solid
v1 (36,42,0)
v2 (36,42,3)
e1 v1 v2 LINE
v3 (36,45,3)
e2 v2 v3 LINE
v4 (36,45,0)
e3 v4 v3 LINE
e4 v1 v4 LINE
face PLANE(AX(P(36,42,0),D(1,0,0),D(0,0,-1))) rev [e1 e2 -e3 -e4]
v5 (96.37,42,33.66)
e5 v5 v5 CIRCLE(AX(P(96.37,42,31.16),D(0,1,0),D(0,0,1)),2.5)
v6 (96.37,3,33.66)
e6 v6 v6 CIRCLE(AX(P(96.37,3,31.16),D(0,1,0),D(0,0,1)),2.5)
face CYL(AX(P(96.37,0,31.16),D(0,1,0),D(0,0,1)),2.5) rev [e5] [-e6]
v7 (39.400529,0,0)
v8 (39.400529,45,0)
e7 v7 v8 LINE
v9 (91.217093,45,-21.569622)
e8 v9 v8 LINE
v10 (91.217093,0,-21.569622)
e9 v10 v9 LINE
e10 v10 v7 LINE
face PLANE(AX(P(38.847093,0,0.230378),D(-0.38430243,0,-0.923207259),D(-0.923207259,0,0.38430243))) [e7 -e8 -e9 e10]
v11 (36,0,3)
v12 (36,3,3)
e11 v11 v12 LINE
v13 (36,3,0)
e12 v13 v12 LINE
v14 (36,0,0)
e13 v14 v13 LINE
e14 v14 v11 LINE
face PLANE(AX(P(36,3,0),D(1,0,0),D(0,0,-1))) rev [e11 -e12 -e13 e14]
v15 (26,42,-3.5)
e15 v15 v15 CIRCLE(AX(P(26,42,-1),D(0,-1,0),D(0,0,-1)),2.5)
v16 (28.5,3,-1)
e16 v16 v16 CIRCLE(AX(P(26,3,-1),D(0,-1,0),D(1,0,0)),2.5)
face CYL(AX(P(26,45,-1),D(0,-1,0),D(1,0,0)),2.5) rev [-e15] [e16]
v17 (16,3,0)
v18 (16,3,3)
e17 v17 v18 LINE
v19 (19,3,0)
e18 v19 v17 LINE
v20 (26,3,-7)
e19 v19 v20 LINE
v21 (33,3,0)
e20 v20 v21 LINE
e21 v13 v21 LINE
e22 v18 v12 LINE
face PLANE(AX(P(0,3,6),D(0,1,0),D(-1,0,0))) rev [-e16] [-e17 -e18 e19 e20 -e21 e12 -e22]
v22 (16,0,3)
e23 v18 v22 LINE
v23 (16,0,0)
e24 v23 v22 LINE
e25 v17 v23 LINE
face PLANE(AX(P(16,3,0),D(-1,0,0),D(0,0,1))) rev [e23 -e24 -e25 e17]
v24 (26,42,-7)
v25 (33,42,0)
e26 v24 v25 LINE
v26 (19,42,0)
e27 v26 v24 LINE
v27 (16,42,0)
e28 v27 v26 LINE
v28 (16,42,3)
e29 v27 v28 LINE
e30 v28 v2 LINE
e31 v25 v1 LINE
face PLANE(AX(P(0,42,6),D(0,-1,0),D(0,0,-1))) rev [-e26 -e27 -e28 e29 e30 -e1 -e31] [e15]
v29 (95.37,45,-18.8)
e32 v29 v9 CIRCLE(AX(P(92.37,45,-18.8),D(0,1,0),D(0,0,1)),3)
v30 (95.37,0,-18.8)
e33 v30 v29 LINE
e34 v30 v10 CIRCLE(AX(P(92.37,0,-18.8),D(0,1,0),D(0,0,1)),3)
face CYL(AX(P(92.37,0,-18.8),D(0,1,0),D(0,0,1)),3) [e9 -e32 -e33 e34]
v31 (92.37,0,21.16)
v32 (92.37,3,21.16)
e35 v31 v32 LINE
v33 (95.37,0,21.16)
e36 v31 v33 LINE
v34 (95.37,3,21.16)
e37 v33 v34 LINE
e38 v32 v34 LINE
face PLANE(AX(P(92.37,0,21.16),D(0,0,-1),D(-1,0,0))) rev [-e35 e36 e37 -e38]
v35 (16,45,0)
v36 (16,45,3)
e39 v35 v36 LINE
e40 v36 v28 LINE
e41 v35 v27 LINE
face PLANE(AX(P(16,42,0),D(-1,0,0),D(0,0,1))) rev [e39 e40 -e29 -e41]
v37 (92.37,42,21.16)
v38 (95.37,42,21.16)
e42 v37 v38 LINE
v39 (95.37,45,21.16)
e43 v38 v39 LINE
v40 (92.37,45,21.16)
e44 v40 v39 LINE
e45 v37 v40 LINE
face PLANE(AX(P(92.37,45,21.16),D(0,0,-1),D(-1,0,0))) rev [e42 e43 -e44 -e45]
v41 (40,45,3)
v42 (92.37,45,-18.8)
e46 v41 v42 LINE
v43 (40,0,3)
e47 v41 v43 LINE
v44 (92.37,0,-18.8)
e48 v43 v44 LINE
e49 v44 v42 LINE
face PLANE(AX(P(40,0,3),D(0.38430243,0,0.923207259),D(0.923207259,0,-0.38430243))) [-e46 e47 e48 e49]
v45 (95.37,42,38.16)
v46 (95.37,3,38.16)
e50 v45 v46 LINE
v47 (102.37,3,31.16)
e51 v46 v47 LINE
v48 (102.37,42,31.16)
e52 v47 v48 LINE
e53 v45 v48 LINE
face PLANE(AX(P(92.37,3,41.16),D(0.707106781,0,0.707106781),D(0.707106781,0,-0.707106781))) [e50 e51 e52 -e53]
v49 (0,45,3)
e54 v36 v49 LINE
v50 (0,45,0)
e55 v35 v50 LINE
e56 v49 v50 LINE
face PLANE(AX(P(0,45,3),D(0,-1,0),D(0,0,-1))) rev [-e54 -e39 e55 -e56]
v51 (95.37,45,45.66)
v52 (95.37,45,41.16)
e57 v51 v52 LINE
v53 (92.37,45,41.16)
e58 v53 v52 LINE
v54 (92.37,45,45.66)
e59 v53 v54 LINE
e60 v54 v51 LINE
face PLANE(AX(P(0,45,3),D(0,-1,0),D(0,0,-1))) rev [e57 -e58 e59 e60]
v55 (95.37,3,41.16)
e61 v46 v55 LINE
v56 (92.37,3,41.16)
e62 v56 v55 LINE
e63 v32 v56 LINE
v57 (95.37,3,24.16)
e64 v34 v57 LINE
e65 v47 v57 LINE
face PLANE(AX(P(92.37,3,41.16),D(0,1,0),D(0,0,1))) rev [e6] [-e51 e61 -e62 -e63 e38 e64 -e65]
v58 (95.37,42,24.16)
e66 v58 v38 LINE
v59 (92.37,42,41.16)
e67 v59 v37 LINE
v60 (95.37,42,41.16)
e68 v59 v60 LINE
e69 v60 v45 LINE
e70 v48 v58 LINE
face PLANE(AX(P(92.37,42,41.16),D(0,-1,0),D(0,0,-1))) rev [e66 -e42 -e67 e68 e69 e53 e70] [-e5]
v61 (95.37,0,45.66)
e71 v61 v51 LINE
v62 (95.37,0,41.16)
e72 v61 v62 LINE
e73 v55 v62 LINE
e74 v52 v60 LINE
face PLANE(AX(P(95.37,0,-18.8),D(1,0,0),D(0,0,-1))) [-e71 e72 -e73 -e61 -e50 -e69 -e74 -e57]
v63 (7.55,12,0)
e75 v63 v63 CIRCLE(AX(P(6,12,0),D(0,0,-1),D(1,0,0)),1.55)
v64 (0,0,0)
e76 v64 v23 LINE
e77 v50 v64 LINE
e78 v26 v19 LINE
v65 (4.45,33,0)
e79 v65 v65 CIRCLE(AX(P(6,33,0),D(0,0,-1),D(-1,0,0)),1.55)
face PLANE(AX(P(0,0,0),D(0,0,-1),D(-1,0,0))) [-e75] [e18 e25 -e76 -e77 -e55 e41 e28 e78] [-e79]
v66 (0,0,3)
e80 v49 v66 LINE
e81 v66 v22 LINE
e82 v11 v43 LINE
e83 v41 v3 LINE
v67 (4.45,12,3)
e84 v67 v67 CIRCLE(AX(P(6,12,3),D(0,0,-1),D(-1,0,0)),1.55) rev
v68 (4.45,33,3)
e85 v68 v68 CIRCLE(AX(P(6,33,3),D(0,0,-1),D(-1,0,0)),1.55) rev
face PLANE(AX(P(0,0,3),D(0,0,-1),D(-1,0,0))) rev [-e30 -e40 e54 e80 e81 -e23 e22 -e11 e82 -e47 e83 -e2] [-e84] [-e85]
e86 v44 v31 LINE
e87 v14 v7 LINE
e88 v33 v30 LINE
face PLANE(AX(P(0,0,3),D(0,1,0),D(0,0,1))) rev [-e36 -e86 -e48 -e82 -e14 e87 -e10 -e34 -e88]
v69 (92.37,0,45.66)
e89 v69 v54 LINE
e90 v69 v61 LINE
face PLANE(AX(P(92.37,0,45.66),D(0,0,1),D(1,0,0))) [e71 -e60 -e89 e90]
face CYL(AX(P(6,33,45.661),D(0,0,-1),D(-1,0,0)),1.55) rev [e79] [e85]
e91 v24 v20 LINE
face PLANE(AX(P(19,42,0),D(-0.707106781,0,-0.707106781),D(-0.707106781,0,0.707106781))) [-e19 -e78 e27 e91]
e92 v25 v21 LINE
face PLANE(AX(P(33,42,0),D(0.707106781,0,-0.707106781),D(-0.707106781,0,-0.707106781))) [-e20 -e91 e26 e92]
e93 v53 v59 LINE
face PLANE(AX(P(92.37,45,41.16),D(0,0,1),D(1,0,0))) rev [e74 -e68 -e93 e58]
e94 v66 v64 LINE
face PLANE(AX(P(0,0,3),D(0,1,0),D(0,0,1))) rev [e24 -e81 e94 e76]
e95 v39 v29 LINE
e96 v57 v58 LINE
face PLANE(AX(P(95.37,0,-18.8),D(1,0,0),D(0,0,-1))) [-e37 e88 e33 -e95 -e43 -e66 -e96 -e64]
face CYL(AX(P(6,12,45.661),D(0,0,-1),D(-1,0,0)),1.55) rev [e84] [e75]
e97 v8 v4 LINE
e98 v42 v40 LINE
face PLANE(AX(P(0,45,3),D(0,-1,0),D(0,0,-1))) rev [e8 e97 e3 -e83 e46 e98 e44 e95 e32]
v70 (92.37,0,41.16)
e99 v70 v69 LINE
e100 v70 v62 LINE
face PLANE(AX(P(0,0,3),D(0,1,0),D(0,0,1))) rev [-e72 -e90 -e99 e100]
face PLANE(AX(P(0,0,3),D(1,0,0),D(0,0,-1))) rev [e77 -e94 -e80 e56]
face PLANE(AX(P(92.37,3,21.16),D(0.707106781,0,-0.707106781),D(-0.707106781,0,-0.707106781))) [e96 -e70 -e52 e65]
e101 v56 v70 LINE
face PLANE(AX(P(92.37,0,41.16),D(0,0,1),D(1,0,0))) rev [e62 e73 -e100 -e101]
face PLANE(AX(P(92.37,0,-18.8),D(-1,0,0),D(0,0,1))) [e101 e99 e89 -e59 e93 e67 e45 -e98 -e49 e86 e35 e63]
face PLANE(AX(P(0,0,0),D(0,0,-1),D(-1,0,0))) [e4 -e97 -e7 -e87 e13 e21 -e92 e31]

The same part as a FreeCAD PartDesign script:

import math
import FreeCAD as App
import Part
import Sketcher
from FreeCAD import Vector
Q = App.Units.Quantity


def add_polygon(sketch, points):
    """Adds a closed chain of lines whose ends are joined by coincident constraints."""
    first, n = sketch.GeometryCount, len(points)
    for a, b in zip(points, points[1:] + points[:1]):
        sketch.addGeometry(Part.LineSegment(App.Vector(*a, 0), App.Vector(*b, 0)), False)
    for i in range(n):
        sketch.addConstraint(Sketcher.Constraint("Coincident", first + i, 2, first + (i + 1) % n, 1))

doc = App.newDocument("Part")
params = doc.addObject("Spreadsheet::Sheet", "Params")
for row, (alias, value) in enumerate([
    ("sketch1_width", "60 mm"),
    ("sketch1_height", "45 mm"),
    ("pad1_length", "3 mm"),
    ("sketch2_width", "60 mm"),
    ("sketch2_height", "3 mm"),
    ("pad2_length", "3 mm"),
    ("sketch3_width", "20 mm"),
    ("sketch3_height", "3 mm"),
    ("pocket1_length", "3 mm"),
    ("sketch4_width", "14 mm"),
    ("pad3_length", "39 mm"),
    ("sketch5_diameter", "5 mm"),
    ("sketch6_width", "60 mm"),
    ("sketch6_height", "3 mm"),
    ("sketch7_width", "20 mm"),
    ("sketch7_height", "3 mm"),
    ("sketch8_length", "3 mm"),
    ("pad4_length", "45 mm"),
    ("sketch9_radius", "3 mm"),
    ("sketch9_height", "64.46 mm"),
    ("pad5_length", "45 mm"),
    ("sketch10_width", "3 mm"),
    ("sketch10_height", "20 mm"),
    ("pocket5_length", "3 mm"),
    ("sketch11_height", "20 mm"),
    ("pad6_length", "39 mm"),
    ("sketch12_diameter", "5 mm"),
    ("sketch13_diameter", "3.1 mm"),
    ("sketch14_diameter", "3.1 mm"),
], start=1):
    params.set(f"A{row}", alias)
    params.set(f"B{row}", "=" + value)
    params.setAlias(f"B{row}", alias)

body = doc.addObject("PartDesign::Body", "Body")

# Sketch on XY plane
sketch1 = doc.addObject("Sketcher::SketchObject", "Sketch")
body.addObject(sketch1)
sketch1.AttachmentSupport = (doc.XY_Plane, [""])
sketch1.MapMode = "FlatFace"
add_polygon(sketch1, [(0, 45), (0, 0), (60, 0), (60, 45)])  # lines 0-3
sketch1.addConstraint([
    Sketcher.Constraint("Vertical", 0),
    Sketcher.Constraint("Horizontal", 1),
    Sketcher.Constraint("Vertical", 2),
    Sketcher.Constraint("Horizontal", 3),
    Sketcher.Constraint("Coincident", 0, 2, -1, 1),
    Sketcher.Constraint("DistanceX", 1, 1, 1, 2, Q("60 mm")),
    Sketcher.Constraint("DistanceY", 0, 2, 0, 1, Q("45 mm")),
])
sketch1.setExpression("Constraints[9]", "Params.sketch1_width")
sketch1.setExpression("Constraints[10]", "Params.sketch1_height")
pad1 = doc.addObject("PartDesign::Pad", "Pad")
body.addObject(pad1)
pad1.Profile = sketch1
pad1.setExpression("Length", "Params.pad1_length")

# Sketch on XY plane
sketch2 = doc.addObject("Sketcher::SketchObject", "Sketch001")
body.addObject(sketch2)
sketch2.AttachmentSupport = (doc.XY_Plane, [""])
sketch2.MapMode = "FlatFace"
sketch2.AttachmentOffset = App.Placement(Vector(0, 0, 3), App.Rotation())
add_polygon(sketch2, [(0, 42), (0, 39), (60, 39), (60, 42)])  # lines 0-3
add_polygon(sketch2, [(0, 6), (0, 3), (60, 3), (60, 6)])  # lines 4-7
sketch2.addConstraint([
    Sketcher.Constraint("Vertical", 0),
    Sketcher.Constraint("Horizontal", 1),
    Sketcher.Constraint("Vertical", 2),
    Sketcher.Constraint("Horizontal", 3),
    Sketcher.Constraint("Vertical", 4),
    Sketcher.Constraint("Horizontal", 5),
    Sketcher.Constraint("Vertical", 6),
    Sketcher.Constraint("Horizontal", 7),
    Sketcher.Constraint("PointOnObject", 0, 2, -2),
    Sketcher.Constraint("PointOnObject", 4, 2, -2),
    Sketcher.Constraint("Vertical", 2, 2, 5, 2),
    Sketcher.Constraint("Equal", 2, 4),
    Sketcher.Constraint("DistanceX", 1, 1, 1, 2, Q("60 mm")),
    Sketcher.Constraint("DistanceY", 0, 2, 0, 1, Q("3 mm")),
    Sketcher.Constraint("DistanceY", -1, 1, 0, 2, Q("39 mm")),
    Sketcher.Constraint("DistanceY", -1, 1, 4, 2, Q("3 mm")),
])
sketch2.setExpression("Constraints[20]", "Params.sketch2_width")
sketch2.setExpression("Constraints[21]", "Params.sketch2_height")
pad2 = doc.addObject("PartDesign::Pad", "Pad001")
body.addObject(pad2)
pad2.Profile = sketch2
pad2.setExpression("Length", "Params.pad2_length")

# Sketch on XY plane
sketch3 = doc.addObject("Sketcher::SketchObject", "Sketch002")
body.addObject(sketch3)
sketch3.AttachmentSupport = (doc.XY_Plane, [""])
sketch3.MapMode = "FlatFace"
sketch3.AttachmentOffset = App.Placement(Vector(0, 0, 3), App.Rotation())
add_polygon(sketch3, [(16, 3), (16, 0), (36, 0), (36, 3)])  # lines 0-3
add_polygon(sketch3, [(16, 45), (16, 42), (36, 42), (36, 45)])  # lines 4-7
sketch3.addConstraint([
    Sketcher.Constraint("Vertical", 0),
    Sketcher.Constraint("Horizontal", 1),
    Sketcher.Constraint("Vertical", 2),
    Sketcher.Constraint("Horizontal", 3),
    Sketcher.Constraint("Vertical", 4),
    Sketcher.Constraint("Horizontal", 5),
    Sketcher.Constraint("Vertical", 6),
    Sketcher.Constraint("Horizontal", 7),
    Sketcher.Constraint("PointOnObject", 0, 2, -1),
    Sketcher.Constraint("Vertical", 3, 2, 4, 2),
    Sketcher.Constraint("Vertical", 2, 2, 5, 2),
    Sketcher.Constraint("Equal", 2, 4),
    Sketcher.Constraint("DistanceX", 1, 1, 1, 2, Q("20 mm")),
    Sketcher.Constraint("DistanceY", 0, 2, 0, 1, Q("3 mm")),
    Sketcher.Constraint("DistanceX", -1, 1, 0, 2, Q("16 mm")),
    Sketcher.Constraint("DistanceY", -1, 1, 4, 2, Q("42 mm")),
])
sketch3.setExpression("Constraints[20]", "Params.sketch3_width")
sketch3.setExpression("Constraints[21]", "Params.sketch3_height")
pocket1 = doc.addObject("PartDesign::Pocket", "Pocket")
body.addObject(pocket1)
pocket1.Profile = sketch3
pocket1.setExpression("Length", "Params.pocket1_length")

# Sketch on XZ plane
sketch4 = doc.addObject("Sketcher::SketchObject", "Sketch003")
body.addObject(sketch4)
sketch4.AttachmentSupport = (doc.XZ_Plane, [""])
sketch4.MapMode = "FlatFace"
sketch4.AttachmentOffset = App.Placement(Vector(0, 0, -42), App.Rotation())
add_polygon(sketch4, [(19, 0), (26, -7), (33, 0)])  # lines 0-2
sketch4.addConstraint([
    Sketcher.Constraint("Horizontal", 2),
    Sketcher.Constraint("PointOnObject", 1, 2, -1),
    Sketcher.Constraint("Perpendicular", 0, 1),
    Sketcher.Constraint("Equal", 0, 1),
    Sketcher.Constraint("DistanceX", 2, 2, 2, 1, Q("14 mm")),
    Sketcher.Constraint("DistanceX", -1, 1, 0, 2, Q("26 mm")),
])
sketch4.setExpression("Constraints[7]", "Params.sketch4_width")
pad3 = doc.addObject("PartDesign::Pad", "Pad002")
body.addObject(pad3)
pad3.Profile = sketch4
pad3.setExpression("Length", "Params.pad3_length")

# Sketch on XZ plane
sketch5 = doc.addObject("Sketcher::SketchObject", "Sketch004")
body.addObject(sketch5)
sketch5.AttachmentSupport = (doc.XZ_Plane, [""])
sketch5.MapMode = "FlatFace"
sketch5.AttachmentOffset = App.Placement(Vector(0, 0, -3), App.Rotation())
sketch5.addGeometry(Part.Circle(Vector(26, -1, 0), Vector(0, 0, 1), 2.5), False)
sketch5.addConstraint([
    Sketcher.Constraint("Diameter", 0, Q("5 mm")),
    Sketcher.Constraint("DistanceX", -1, 1, 0, 3, Q("26 mm")),
    Sketcher.Constraint("DistanceY", 0, 3, -1, 1, Q("1 mm")),
])
sketch5.setExpression("Constraints[0]", "Params.sketch5_diameter")
pocket2 = doc.addObject("PartDesign::Pocket", "Pocket001")
body.addObject(pocket2)
pocket2.Profile = sketch5
pocket2.Type = "ThroughAll"

# Sketch on XZ plane
sketch6 = doc.addObject("Sketcher::SketchObject", "Sketch005")
body.addObject(sketch6)
sketch6.AttachmentSupport = (doc.XZ_Plane, [""])
sketch6.MapMode = "FlatFace"
sketch6.AttachmentOffset = App.Placement(Vector(0, 0, -3), App.Rotation())
add_polygon(sketch6, [(0, 6), (0, 3), (60, 3), (60, 6)])  # lines 0-3
sketch6.addConstraint([
    Sketcher.Constraint("Vertical", 0),
    Sketcher.Constraint("Horizontal", 1),
    Sketcher.Constraint("Vertical", 2),
    Sketcher.Constraint("Horizontal", 3),
    Sketcher.Constraint("PointOnObject", 0, 2, -2),
    Sketcher.Constraint("DistanceX", 1, 1, 1, 2, Q("60 mm")),
    Sketcher.Constraint("DistanceY", 0, 2, 0, 1, Q("3 mm")),
    Sketcher.Constraint("DistanceY", -1, 1, 0, 2, Q("3 mm")),
])
sketch6.setExpression("Constraints[9]", "Params.sketch6_width")
sketch6.setExpression("Constraints[10]", "Params.sketch6_height")
pocket3 = doc.addObject("PartDesign::Pocket", "Pocket002")
body.addObject(pocket3)
pocket3.Profile = sketch6
pocket3.Type = "ThroughAll"

# Sketch on XZ plane
sketch7 = doc.addObject("Sketcher::SketchObject", "Sketch006")
body.addObject(sketch7)
sketch7.AttachmentSupport = (doc.XZ_Plane, [""])
sketch7.MapMode = "FlatFace"
add_polygon(sketch7, [(40, 3), (40, 0), (60, 0), (60, 3)])  # lines 0-3
sketch7.addConstraint([
    Sketcher.Constraint("Vertical", 0),
    Sketcher.Constraint("Horizontal", 1),
    Sketcher.Constraint("Vertical", 2),
    Sketcher.Constraint("Horizontal", 3),
    Sketcher.Constraint("PointOnObject", 0, 2, -1),
    Sketcher.Constraint("DistanceX", 1, 1, 1, 2, Q("20 mm")),
    Sketcher.Constraint("DistanceY", 0, 2, 0, 1, Q("3 mm")),
    Sketcher.Constraint("DistanceX", -1, 1, 0, 2, Q("40 mm")),
])
sketch7.setExpression("Constraints[9]", "Params.sketch7_width")
sketch7.setExpression("Constraints[10]", "Params.sketch7_height")
pocket4 = doc.addObject("PartDesign::Pocket", "Pocket003")
body.addObject(pocket4)
pocket4.Profile = sketch7
pocket4.Type = "ThroughAll"

# Sketch on XZ plane
sketch8 = doc.addObject("Sketcher::SketchObject", "Sketch007")
body.addObject(sketch8)
sketch8.AttachmentSupport = (doc.XZ_Plane, [""])
sketch8.MapMode = "FlatFace"
sketch8.AttachmentOffset = App.Placement(Vector(0, 0, -45), App.Rotation())
add_polygon(sketch8, [(40, 3), (92.37, -18.8), (91.217093, -21.569622), (38.847093, 0.230378)])  # lines 0-3
sketch8.addConstraint([
    Sketcher.Constraint("Perpendicular", 0, 1),
    Sketcher.Constraint("Perpendicular", 1, 2),
    Sketcher.Constraint("Perpendicular", 2, 3),
    Sketcher.Constraint("Distance", 1, Q("3 mm")),
    Sketcher.Constraint("DistanceX", -1, 1, 3, 2, Q("40 mm")),
    Sketcher.Constraint("DistanceY", -1, 1, 3, 2, Q("3 mm")),
    Sketcher.Constraint("DistanceY", 0, 2, -1, 1, Q("18.8 mm")),
    Sketcher.Constraint("DistanceX", -1, 1, 0, 2, Q("92.37 mm")),
])
sketch8.setExpression("Constraints[7]", "Params.sketch8_length")
pad4 = doc.addObject("PartDesign::Pad", "Pad003")
body.addObject(pad4)
pad4.Profile = sketch8
pad4.setExpression("Length", "Params.pad4_length")

# Sketch on XZ plane
sketch9 = doc.addObject("Sketcher::SketchObject", "Sketch008")
body.addObject(sketch9)
sketch9.AttachmentSupport = (doc.XZ_Plane, [""])
sketch9.MapMode = "FlatFace"
sketch9.AttachmentOffset = App.Placement(Vector(0, 0, -45), App.Rotation())
sketch9.addGeometry([
    Part.LineSegment(Vector(91.217093, -21.569622, 0), Vector(92.37, -18.8, 0)),  # 0
    Part.LineSegment(Vector(92.37, -18.8, 0), Vector(92.37, 45.66, 0)),  # 1
    Part.LineSegment(Vector(92.37, 45.66, 0), Vector(95.37, 45.66, 0)),  # 2
    Part.LineSegment(Vector(95.37, 45.66, 0), Vector(95.37, -18.8, 0)),  # 3
    Part.ArcOfCircle(Part.Circle(Vector(92.37, -18.8, 0), Vector(0, 0, 1), 3), math.radians(-112.600441), math.radians(0)),  # 4
], False)
sketch9.addConstraint([
    Sketcher.Constraint("Coincident", 0, 2, 1, 1),
    Sketcher.Constraint("Coincident", 1, 2, 2, 1),
    Sketcher.Constraint("Coincident", 2, 2, 3, 1),
    Sketcher.Constraint("Tangent", 3, 2, 4, 2),
    Sketcher.Constraint("Coincident", 4, 1, 0, 1),
    Sketcher.Constraint("Vertical", 1),
    Sketcher.Constraint("Horizontal", 2),
    Sketcher.Constraint("Vertical", 3),
    Sketcher.Constraint("Coincident", 0, 2, 4, 3),
    Sketcher.Constraint("Radius", 4, Q("3 mm")),
    Sketcher.Constraint("DistanceY", 1, 1, 1, 2, Q("64.46 mm")),
    Sketcher.Constraint("DistanceY", 4, 3, -1, 1, Q("18.8 mm")),
    Sketcher.Constraint("DistanceX", -1, 1, 4, 3, Q("92.37 mm")),
    Sketcher.Constraint("DistanceY", 4, 1, -1, 1, Q("21.569622 mm")),
])
sketch9.setExpression("Constraints[9]", "Params.sketch9_radius")
sketch9.setExpression("Constraints[10]", "Params.sketch9_height")
pad5 = doc.addObject("PartDesign::Pad", "Pad004")
body.addObject(pad5)
pad5.Profile = sketch9
pad5.setExpression("Length", "Params.pad5_length")

# Sketch on YZ plane
sketch10 = doc.addObject("Sketcher::SketchObject", "Sketch009")
body.addObject(sketch10)
sketch10.AttachmentSupport = (doc.YZ_Plane, [""])
sketch10.MapMode = "FlatFace"
sketch10.AttachmentOffset = App.Placement(Vector(0, 0, 95.37), App.Rotation())
add_polygon(sketch10, [(3, 41.16), (0, 41.16), (0, 21.16), (3, 21.16)])  # lines 0-3
add_polygon(sketch10, [(45, 41.16), (42, 41.16), (42, 21.16), (45, 21.16)])  # lines 4-7
sketch10.addConstraint([
    Sketcher.Constraint("Horizontal", 0),
    Sketcher.Constraint("Vertical", 1),
    Sketcher.Constraint("Horizontal", 2),
    Sketcher.Constraint("Vertical", 3),
    Sketcher.Constraint("Horizontal", 4),
    Sketcher.Constraint("Vertical", 5),
    Sketcher.Constraint("Horizontal", 6),
    Sketcher.Constraint("Vertical", 7),
    Sketcher.Constraint("PointOnObject", 0, 2, -2),
    Sketcher.Constraint("Horizontal", 3, 2, 4, 2),
    Sketcher.Constraint("Horizontal", 2, 2, 5, 2),
    Sketcher.Constraint("Equal", 2, 4),
    Sketcher.Constraint("DistanceX", 0, 2, 0, 1, Q("3 mm")),
    Sketcher.Constraint("DistanceY", 1, 2, 1, 1, Q("20 mm")),
    Sketcher.Constraint("DistanceX", -1, 1, 4, 2, Q("42 mm")),
    Sketcher.Constraint("DistanceY", -1, 1, 0, 2, Q("41.16 mm")),
])
sketch10.setExpression("Constraints[20]", "Params.sketch10_width")
sketch10.setExpression("Constraints[21]", "Params.sketch10_height")
pocket5 = doc.addObject("PartDesign::Pocket", "Pocket004")
body.addObject(pocket5)
pocket5.Profile = sketch10
pocket5.setExpression("Length", "Params.pocket5_length")

# Sketch on XZ plane
sketch11 = doc.addObject("Sketcher::SketchObject", "Sketch010")
body.addObject(sketch11)
sketch11.AttachmentSupport = (doc.XZ_Plane, [""])
sketch11.MapMode = "FlatFace"
sketch11.AttachmentOffset = App.Placement(Vector(0, 0, -3), App.Rotation())
add_polygon(sketch11, [(102.37, 31.16), (92.37, 21.16), (92.37, 41.16)])  # lines 0-2
sketch11.addConstraint([
    Sketcher.Constraint("Vertical", 1),
    Sketcher.Constraint("Perpendicular", 0, 2),
    Sketcher.Constraint("Equal", 0, 2),
    Sketcher.Constraint("DistanceY", 1, 1, 1, 2, Q("20 mm")),
    Sketcher.Constraint("DistanceX", -1, 1, 0, 2, Q("92.37 mm")),
    Sketcher.Constraint("DistanceY", -1, 1, 0, 2, Q("21.16 mm")),
])
sketch11.setExpression("Constraints[6]", "Params.sketch11_height")
pad6 = doc.addObject("PartDesign::Pad", "Pad005")
body.addObject(pad6)
pad6.Profile = sketch11
pad6.setExpression("Length", "Params.pad6_length")
pad6.Reversed = True

# Sketch on XZ plane
sketch12 = doc.addObject("Sketcher::SketchObject", "Sketch011")
body.addObject(sketch12)
sketch12.AttachmentSupport = (doc.XZ_Plane, [""])
sketch12.MapMode = "FlatFace"
sketch12.AttachmentOffset = App.Placement(Vector(0, 0, -42), App.Rotation())
sketch12.addGeometry(Part.Circle(Vector(96.37, 31.16, 0), Vector(0, 0, 1), 2.5), False)
sketch12.addConstraint([
    Sketcher.Constraint("Diameter", 0, Q("5 mm")),
    Sketcher.Constraint("DistanceX", -1, 1, 0, 3, Q("96.37 mm")),
    Sketcher.Constraint("DistanceY", -1, 1, 0, 3, Q("31.16 mm")),
])
sketch12.setExpression("Constraints[0]", "Params.sketch12_diameter")
pocket6 = doc.addObject("PartDesign::Pocket", "Pocket005")
body.addObject(pocket6)
pocket6.Profile = sketch12
pocket6.Type = "ThroughAll"
pocket6.Reversed = True

# Sketch on XY plane
sketch13 = doc.addObject("Sketcher::SketchObject", "Sketch012")
body.addObject(sketch13)
sketch13.AttachmentSupport = (doc.XY_Plane, [""])
sketch13.MapMode = "FlatFace"
sketch13.addGeometry(Part.Circle(Vector(6, 33, 0), Vector(0, 0, 1), 1.55), False)
sketch13.addConstraint([
    Sketcher.Constraint("Diameter", 0, Q("3.1 mm")),
    Sketcher.Constraint("DistanceX", -1, 1, 0, 3, Q("6 mm")),
    Sketcher.Constraint("DistanceY", -1, 1, 0, 3, Q("33 mm")),
])
sketch13.setExpression("Constraints[0]", "Params.sketch13_diameter")
pocket7 = doc.addObject("PartDesign::Pocket", "Pocket006")
body.addObject(pocket7)
pocket7.Profile = sketch13
pocket7.Type = "UpToFirst"
pocket7.Reversed = True

# Sketch on XY plane
sketch14 = doc.addObject("Sketcher::SketchObject", "Sketch013")
body.addObject(sketch14)
sketch14.AttachmentSupport = (doc.XY_Plane, [""])
sketch14.MapMode = "FlatFace"
sketch14.addGeometry(Part.Circle(Vector(6, 12, 0), Vector(0, 0, 1), 1.55), False)
sketch14.addConstraint([
    Sketcher.Constraint("Diameter", 0, Q("3.1 mm")),
    Sketcher.Constraint("DistanceX", -1, 1, 0, 3, Q("6 mm")),
    Sketcher.Constraint("DistanceY", -1, 1, 0, 3, Q("12 mm")),
])
sketch14.setExpression("Constraints[0]", "Params.sketch14_diameter")
pocket8 = doc.addObject("PartDesign::Pocket", "Pocket007")
body.addObject(pocket8)
pocket8.Profile = sketch14
pocket8.Type = "UpToFirst"
pocket8.Reversed = True

doc.recompute()
